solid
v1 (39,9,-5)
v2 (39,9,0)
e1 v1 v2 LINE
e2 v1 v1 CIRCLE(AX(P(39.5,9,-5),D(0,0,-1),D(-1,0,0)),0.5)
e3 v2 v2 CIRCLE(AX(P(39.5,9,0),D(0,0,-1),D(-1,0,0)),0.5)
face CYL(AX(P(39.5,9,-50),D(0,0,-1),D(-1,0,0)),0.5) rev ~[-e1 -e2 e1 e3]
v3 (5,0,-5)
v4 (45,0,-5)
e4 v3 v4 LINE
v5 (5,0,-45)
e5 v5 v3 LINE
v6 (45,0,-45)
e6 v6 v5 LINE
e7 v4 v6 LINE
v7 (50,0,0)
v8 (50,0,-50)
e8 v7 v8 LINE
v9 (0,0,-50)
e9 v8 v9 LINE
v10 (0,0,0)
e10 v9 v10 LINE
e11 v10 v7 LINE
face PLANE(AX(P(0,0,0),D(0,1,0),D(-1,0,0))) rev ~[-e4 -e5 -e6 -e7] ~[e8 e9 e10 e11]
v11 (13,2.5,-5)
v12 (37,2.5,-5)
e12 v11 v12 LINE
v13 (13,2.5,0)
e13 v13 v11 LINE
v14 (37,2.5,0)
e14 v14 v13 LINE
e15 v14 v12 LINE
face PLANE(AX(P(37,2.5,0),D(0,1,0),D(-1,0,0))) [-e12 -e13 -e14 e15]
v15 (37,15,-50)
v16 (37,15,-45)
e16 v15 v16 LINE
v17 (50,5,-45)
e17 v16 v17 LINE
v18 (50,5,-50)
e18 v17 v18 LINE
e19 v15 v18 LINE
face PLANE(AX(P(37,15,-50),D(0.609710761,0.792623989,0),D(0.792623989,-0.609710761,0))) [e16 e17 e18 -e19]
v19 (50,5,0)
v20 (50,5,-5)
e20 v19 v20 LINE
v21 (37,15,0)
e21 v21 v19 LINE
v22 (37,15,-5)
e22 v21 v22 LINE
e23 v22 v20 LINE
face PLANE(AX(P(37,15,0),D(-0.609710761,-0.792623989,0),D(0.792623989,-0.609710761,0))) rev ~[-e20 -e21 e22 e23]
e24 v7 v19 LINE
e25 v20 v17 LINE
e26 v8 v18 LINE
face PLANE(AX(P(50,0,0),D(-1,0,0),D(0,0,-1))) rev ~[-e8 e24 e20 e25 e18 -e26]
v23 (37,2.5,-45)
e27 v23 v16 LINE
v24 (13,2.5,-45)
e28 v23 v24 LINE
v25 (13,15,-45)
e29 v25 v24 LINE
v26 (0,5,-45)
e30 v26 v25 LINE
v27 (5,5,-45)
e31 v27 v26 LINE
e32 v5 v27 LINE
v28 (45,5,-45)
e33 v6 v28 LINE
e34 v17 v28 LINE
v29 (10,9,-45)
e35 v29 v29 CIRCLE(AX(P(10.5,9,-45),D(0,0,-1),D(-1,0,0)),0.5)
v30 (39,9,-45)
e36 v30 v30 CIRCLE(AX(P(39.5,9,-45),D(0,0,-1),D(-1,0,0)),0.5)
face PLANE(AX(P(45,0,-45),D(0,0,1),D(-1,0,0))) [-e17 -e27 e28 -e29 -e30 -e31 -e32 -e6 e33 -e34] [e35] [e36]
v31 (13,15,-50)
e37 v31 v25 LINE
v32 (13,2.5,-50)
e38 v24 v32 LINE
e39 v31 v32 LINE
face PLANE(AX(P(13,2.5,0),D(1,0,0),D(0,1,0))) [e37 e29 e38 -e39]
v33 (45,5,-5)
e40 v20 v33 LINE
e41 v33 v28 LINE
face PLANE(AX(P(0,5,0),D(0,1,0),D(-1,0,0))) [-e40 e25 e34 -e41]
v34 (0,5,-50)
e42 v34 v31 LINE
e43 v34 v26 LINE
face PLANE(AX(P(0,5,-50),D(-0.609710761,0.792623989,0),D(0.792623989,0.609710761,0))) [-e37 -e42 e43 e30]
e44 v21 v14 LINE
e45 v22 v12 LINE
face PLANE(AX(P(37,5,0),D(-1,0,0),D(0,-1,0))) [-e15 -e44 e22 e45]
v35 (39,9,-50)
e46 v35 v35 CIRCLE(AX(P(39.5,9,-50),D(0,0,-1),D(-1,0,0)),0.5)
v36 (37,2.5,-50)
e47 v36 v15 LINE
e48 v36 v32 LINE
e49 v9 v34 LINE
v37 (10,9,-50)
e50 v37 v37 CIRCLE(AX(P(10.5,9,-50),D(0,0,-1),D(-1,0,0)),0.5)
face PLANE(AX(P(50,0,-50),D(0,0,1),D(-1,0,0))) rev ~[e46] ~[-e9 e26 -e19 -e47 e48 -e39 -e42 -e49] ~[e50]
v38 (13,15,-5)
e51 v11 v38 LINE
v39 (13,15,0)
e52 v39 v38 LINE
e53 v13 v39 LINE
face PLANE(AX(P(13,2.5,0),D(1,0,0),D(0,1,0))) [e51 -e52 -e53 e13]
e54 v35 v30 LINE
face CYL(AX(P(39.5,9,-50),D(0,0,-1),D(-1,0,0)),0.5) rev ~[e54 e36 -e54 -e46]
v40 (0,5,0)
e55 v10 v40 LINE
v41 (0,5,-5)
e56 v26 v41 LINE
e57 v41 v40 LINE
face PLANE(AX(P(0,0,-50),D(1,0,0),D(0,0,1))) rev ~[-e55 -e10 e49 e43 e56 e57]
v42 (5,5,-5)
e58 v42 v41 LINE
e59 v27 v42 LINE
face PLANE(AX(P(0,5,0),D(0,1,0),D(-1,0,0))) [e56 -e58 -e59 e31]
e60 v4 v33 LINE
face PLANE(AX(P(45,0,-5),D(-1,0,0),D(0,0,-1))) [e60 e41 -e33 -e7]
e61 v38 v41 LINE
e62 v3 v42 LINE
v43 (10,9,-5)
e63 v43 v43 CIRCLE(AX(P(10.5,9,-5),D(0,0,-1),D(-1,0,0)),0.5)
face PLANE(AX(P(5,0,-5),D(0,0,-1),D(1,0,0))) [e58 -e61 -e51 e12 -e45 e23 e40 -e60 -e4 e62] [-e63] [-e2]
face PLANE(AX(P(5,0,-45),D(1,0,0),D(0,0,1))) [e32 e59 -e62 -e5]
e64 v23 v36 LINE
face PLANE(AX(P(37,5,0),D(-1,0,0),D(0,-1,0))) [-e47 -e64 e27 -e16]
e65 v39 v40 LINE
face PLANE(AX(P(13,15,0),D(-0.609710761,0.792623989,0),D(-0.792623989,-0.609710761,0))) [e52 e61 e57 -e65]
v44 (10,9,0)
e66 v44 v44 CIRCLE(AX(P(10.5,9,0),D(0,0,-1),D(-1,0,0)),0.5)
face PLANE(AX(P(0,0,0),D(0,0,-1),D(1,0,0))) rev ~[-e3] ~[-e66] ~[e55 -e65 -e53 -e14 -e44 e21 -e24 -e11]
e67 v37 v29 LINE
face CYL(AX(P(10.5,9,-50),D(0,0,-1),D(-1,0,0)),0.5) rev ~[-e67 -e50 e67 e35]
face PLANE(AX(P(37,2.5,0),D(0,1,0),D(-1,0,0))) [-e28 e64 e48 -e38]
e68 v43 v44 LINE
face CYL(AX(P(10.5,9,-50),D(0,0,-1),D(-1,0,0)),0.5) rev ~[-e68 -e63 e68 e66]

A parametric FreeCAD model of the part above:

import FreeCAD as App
import Part
import Sketcher
Q = App.Units.Quantity

doc = App.newDocument("Part")
body = doc.addObject("PartDesign::Body", "Body")

# Sketch on XZ plane
sketch1 = body.newObject("Sketcher::SketchObject", "Sketch")
sketch1.AttachmentSupport = (doc.getObject("XZ_Plane"), [""])
sketch1.MapMode = "FlatFace"
sketch1.addGeometry(Part.LineSegment(App.Vector(0, -50, 0), App.Vector(0, 0, 0)), False)
sketch1.addGeometry(Part.LineSegment(App.Vector(0, 0, 0), App.Vector(50, 0, 0)), False)
sketch1.addGeometry(Part.LineSegment(App.Vector(50, 0, 0), App.Vector(50, -50, 0)), False)
sketch1.addGeometry(Part.LineSegment(App.Vector(50, -50, 0), App.Vector(0, -50, 0)), False)
sketch1.addGeometry(Part.LineSegment(App.Vector(45, -5, 0), App.Vector(5, -5, 0)), False)
sketch1.addGeometry(Part.LineSegment(App.Vector(5, -5, 0), App.Vector(5, -45, 0)), False)
sketch1.addGeometry(Part.LineSegment(App.Vector(5, -45, 0), App.Vector(45, -45, 0)), False)
sketch1.addGeometry(Part.LineSegment(App.Vector(45, -45, 0), App.Vector(45, -5, 0)), False)
sketch1.addConstraint(Sketcher.Constraint("Coincident", 0, 2, 1, 1))
sketch1.addConstraint(Sketcher.Constraint("Coincident", 1, 2, 2, 1))
sketch1.addConstraint(Sketcher.Constraint("Coincident", 2, 2, 3, 1))
sketch1.addConstraint(Sketcher.Constraint("Coincident", 3, 2, 0, 1))
sketch1.addConstraint(Sketcher.Constraint("Coincident", 4, 2, 5, 1))
sketch1.addConstraint(Sketcher.Constraint("Coincident", 5, 2, 6, 1))
sketch1.addConstraint(Sketcher.Constraint("Coincident", 6, 2, 7, 1))
sketch1.addConstraint(Sketcher.Constraint("Coincident", 7, 2, 4, 1))
sketch1.addConstraint(Sketcher.Constraint("Vertical", 0))
sketch1.addConstraint(Sketcher.Constraint("Horizontal", 1))
sketch1.addConstraint(Sketcher.Constraint("Vertical", 2))
sketch1.addConstraint(Sketcher.Constraint("Horizontal", 3))
sketch1.addConstraint(Sketcher.Constraint("Horizontal", 4))
sketch1.addConstraint(Sketcher.Constraint("Vertical", 5))
sketch1.addConstraint(Sketcher.Constraint("Horizontal", 6))
sketch1.addConstraint(Sketcher.Constraint("Vertical", 7))
sketch1.addConstraint(Sketcher.Constraint("Coincident", 0, 2, -1, 1))
sketch1.addConstraint(Sketcher.Constraint("Equal", 3, 0))
sketch1.addConstraint(Sketcher.Constraint("Equal", 6, 5))
sketch1.addConstraint(Sketcher.Constraint("DistanceX", 1, 1, 1, 2, Q("50 mm")))
sketch1.addConstraint(Sketcher.Constraint("DistanceX", -1, 1, 4, 2, Q("5 mm")))
sketch1.addConstraint(Sketcher.Constraint("DistanceY", 4, 2, -1, 1, Q("5 mm")))
sketch1.addConstraint(Sketcher.Constraint("DistanceY", 3, 2, 5, 2, Q("5 mm")))
pad1 = body.newObject("PartDesign::Pad", "Pad")
pad1.Profile = sketch1
pad1.Length = 5
pad1.Reversed = True

# Sketch on XY plane
sketch2 = body.newObject("Sketcher::SketchObject", "Sketch001")
sketch2.AttachmentSupport = (doc.getObject("XY_Plane"), [""])
sketch2.MapMode = "FlatFace"
sketch2.addGeometry(Part.LineSegment(App.Vector(37, 5, 0), App.Vector(13, 5, 0)), False)
sketch2.addGeometry(Part.LineSegment(App.Vector(13, 5, 0), App.Vector(13, 2.5, 0)), False)
sketch2.addGeometry(Part.LineSegment(App.Vector(13, 2.5, 0), App.Vector(37, 2.5, 0)), False)
sketch2.addGeometry(Part.LineSegment(App.Vector(37, 2.5, 0), App.Vector(37, 5, 0)), False)
sketch2.addConstraint(Sketcher.Constraint("Coincident", 0, 2, 1, 1))
sketch2.addConstraint(Sketcher.Constraint("Coincident", 1, 2, 2, 1))
sketch2.addConstraint(Sketcher.Constraint("Coincident", 2, 2, 3, 1))
sketch2.addConstraint(Sketcher.Constraint("Coincident", 3, 2, 0, 1))
sketch2.addConstraint(Sketcher.Constraint("Horizontal", 0))
sketch2.addConstraint(Sketcher.Constraint("Vertical", 1))
sketch2.addConstraint(Sketcher.Constraint("Horizontal", 2))
sketch2.addConstraint(Sketcher.Constraint("Vertical", 3))
sketch2.addConstraint(Sketcher.Constraint("DistanceX", 0, 2, 0, 1, Q("24 mm")))
sketch2.addConstraint(Sketcher.Constraint("DistanceY", 1, 2, 1, 1, Q("2.5 mm")))
sketch2.addConstraint(Sketcher.Constraint("DistanceX", -1, 1, 0, 2, Q("13 mm")))
sketch2.addConstraint(Sketcher.Constraint("DistanceY", -1, 1, 1, 2, Q("2.5 mm")))
pocket1 = body.newObject("PartDesign::Pocket", "Pocket")
pocket1.Profile = sketch2
pocket1.Type = "ThroughAll"

# Sketch on XY plane
sketch3 = body.newObject("Sketcher::SketchObject", "Sketch002")
sketch3.AttachmentSupport = (doc.getObject("XY_Plane"), [""])
sketch3.MapMode = "FlatFace"
sketch3.addGeometry(Part.LineSegment(App.Vector(0, 5, 0), App.Vector(13, 5, 0)), False)
sketch3.addGeometry(Part.LineSegment(App.Vector(13, 5, 0), App.Vector(13, 15, 0)), False)
sketch3.addGeometry(Part.LineSegment(App.Vector(13, 15, 0), App.Vector(0, 5, 0)), False)
sketch3.addGeometry(Part.LineSegment(App.Vector(37, 15, 0), App.Vector(37, 5, 0)), False)
sketch3.addGeometry(Part.LineSegment(App.Vector(37, 5, 0), App.Vector(50, 5, 0)), False)
sketch3.addGeometry(Part.LineSegment(App.Vector(50, 5, 0), App.Vector(37, 15, 0)), False)
sketch3.addConstraint(Sketcher.Constraint("Coincident", 0, 2, 1, 1))
sketch3.addConstraint(Sketcher.Constraint("Coincident", 1, 2, 2, 1))
sketch3.addConstraint(Sketcher.Constraint("Coincident", 2, 2, 0, 1))
sketch3.addConstraint(Sketcher.Constraint("Coincident", 3, 2, 4, 1))
sketch3.addConstraint(Sketcher.Constraint("Coincident", 4, 2, 5, 1))
sketch3.addConstraint(Sketcher.Constraint("Coincident", 5, 2, 3, 1))
sketch3.addConstraint(Sketcher.Constraint("Horizontal", 0))
sketch3.addConstraint(Sketcher.Constraint("Vertical", 1))
sketch3.addConstraint(Sketcher.Constraint("Vertical", 3))
sketch3.addConstraint(Sketcher.Constraint("Horizontal", 4))
sketch3.addConstraint(Sketcher.Constraint("PointOnObject", 2, 2, -2))
sketch3.addConstraint(Sketcher.Constraint("Horizontal", 2, 2, 3, 2))
sketch3.addConstraint(Sketcher.Constraint("Horizontal", 1, 2, 5, 2))
sketch3.addConstraint(Sketcher.Constraint("Equal", 0, 4))
sketch3.addConstraint(Sketcher.Constraint("DistanceY", 1, 1, 1, 2, Q("10 mm")))
sketch3.addConstraint(Sketcher.Constraint("DistanceX", 0, 1, 0, 2, Q("13 mm")))
sketch3.addConstraint(Sketcher.Constraint("DistanceY", -1, 1, 0, 2, Q("5 mm")))
sketch3.addConstraint(Sketcher.Constraint("DistanceX", -1, 1, 3, 2, Q("37 mm")))
pad2 = body.newObject("PartDesign::Pad", "Pad001")
pad2.Profile = sketch3
pad2.Length = 5
pad2.Reversed = True

# Sketch on XY plane
sketch4 = body.newObject("Sketcher::SketchObject", "Sketch003")
sketch4.AttachmentSupport = (doc.getObject("XY_Plane"), [""])
sketch4.MapMode = "FlatFace"
sketch4.AttachmentOffset = App.Placement(App.Vector(0, 0, -50), App.Rotation())
sketch4.addGeometry(Part.LineSegment(App.Vector(13, 5, 0), App.Vector(0, 5, 0)), False)
sketch4.addGeometry(Part.LineSegment(App.Vector(0, 5, 0), App.Vector(13, 15, 0)), False)
sketch4.addGeometry(Part.LineSegment(App.Vector(13, 15, 0), App.Vector(13, 5, 0)), False)
sketch4.addGeometry(Part.LineSegment(App.Vector(37, 5, 0), App.Vector(37, 15, 0)), False)
sketch4.addGeometry(Part.LineSegment(App.Vector(37, 15, 0), App.Vector(50, 5, 0)), False)
sketch4.addGeometry(Part.LineSegment(App.Vector(50, 5, 0), App.Vector(37, 5, 0)), False)
sketch4.addConstraint(Sketcher.Constraint("Coincident", 0, 2, 1, 1))
sketch4.addConstraint(Sketcher.Constraint("Coincident", 1, 2, 2, 1))
sketch4.addConstraint(Sketcher.Constraint("Coincident", 2, 2, 0, 1))
sketch4.addConstraint(Sketcher.Constraint("Coincident", 3, 2, 4, 1))
sketch4.addConstraint(Sketcher.Constraint("Coincident", 4, 2, 5, 1))
sketch4.addConstraint(Sketcher.Constraint("Coincident", 5, 2, 3, 1))
sketch4.addConstraint(Sketcher.Constraint("Horizontal", 0))
sketch4.addConstraint(Sketcher.Constraint("Vertical", 2))
sketch4.addConstraint(Sketcher.Constraint("Vertical", 3))
sketch4.addConstraint(Sketcher.Constraint("Horizontal", 5))
sketch4.addConstraint(Sketcher.Constraint("PointOnObject", 0, 2, -2))
sketch4.addConstraint(Sketcher.Constraint("Horizontal", 1, 2, 3, 2))
sketch4.addConstraint(Sketcher.Constraint("Horizontal", 2, 2, 4, 2))
sketch4.addConstraint(Sketcher.Constraint("Equal", 0, 5))
sketch4.addConstraint(Sketcher.Constraint("DistanceX", 0, 2, 0, 1, Q("13 mm")))
sketch4.addConstraint(Sketcher.Constraint("DistanceY", 2, 2, 2, 1, Q("10 mm")))
sketch4.addConstraint(Sketcher.Constraint("DistanceY", -1, 1, 0, 2, Q("5 mm")))
sketch4.addConstraint(Sketcher.Constraint("DistanceX", -1, 1, 3, 2, Q("37 mm")))
pad3 = body.newObject("PartDesign::Pad", "Pad002")
pad3.Profile = sketch4
pad3.Length = 5

# Sketch on XY plane
sketch5 = body.newObject("Sketcher::SketchObject", "Sketch004")
sketch5.AttachmentSupport = (doc.getObject("XY_Plane"), [""])
sketch5.MapMode = "FlatFace"
sketch5.AttachmentOffset = App.Placement(App.Vector(0, 0, -50), App.Rotation())
sketch5.addGeometry(Part.Circle(App.Vector(10.5, 9, 0), App.Vector(0, 0, 1), 0.5), False)
sketch5.addGeometry(Part.Circle(App.Vector(39.5, 9, 0), App.Vector(0, 0, 1), 0.5), False)
sketch5.addConstraint(Sketcher.Constraint("Equal", 0, 1))
sketch5.addConstraint(Sketcher.Constraint("Horizontal", 0, 3, 1, 3))
sketch5.addConstraint(Sketcher.Constraint("Diameter", 0, Q("1 mm")))
sketch5.addConstraint(Sketcher.Constraint("DistanceY", -1, 1, 0, 3, Q("9 mm")))
sketch5.addConstraint(Sketcher.Constraint("DistanceX", 0, 3, 1, 3, Q("29 mm")))
sketch5.addConstraint(Sketcher.Constraint("DistanceX", -1, 1, 0, 3, Q("10.5 mm")))
pocket2 = body.newObject("PartDesign::Pocket", "Pocket001")
pocket2.Profile = sketch5
pocket2.Type = "ThroughAll"
pocket2.Reversed = True

doc.recompute()
